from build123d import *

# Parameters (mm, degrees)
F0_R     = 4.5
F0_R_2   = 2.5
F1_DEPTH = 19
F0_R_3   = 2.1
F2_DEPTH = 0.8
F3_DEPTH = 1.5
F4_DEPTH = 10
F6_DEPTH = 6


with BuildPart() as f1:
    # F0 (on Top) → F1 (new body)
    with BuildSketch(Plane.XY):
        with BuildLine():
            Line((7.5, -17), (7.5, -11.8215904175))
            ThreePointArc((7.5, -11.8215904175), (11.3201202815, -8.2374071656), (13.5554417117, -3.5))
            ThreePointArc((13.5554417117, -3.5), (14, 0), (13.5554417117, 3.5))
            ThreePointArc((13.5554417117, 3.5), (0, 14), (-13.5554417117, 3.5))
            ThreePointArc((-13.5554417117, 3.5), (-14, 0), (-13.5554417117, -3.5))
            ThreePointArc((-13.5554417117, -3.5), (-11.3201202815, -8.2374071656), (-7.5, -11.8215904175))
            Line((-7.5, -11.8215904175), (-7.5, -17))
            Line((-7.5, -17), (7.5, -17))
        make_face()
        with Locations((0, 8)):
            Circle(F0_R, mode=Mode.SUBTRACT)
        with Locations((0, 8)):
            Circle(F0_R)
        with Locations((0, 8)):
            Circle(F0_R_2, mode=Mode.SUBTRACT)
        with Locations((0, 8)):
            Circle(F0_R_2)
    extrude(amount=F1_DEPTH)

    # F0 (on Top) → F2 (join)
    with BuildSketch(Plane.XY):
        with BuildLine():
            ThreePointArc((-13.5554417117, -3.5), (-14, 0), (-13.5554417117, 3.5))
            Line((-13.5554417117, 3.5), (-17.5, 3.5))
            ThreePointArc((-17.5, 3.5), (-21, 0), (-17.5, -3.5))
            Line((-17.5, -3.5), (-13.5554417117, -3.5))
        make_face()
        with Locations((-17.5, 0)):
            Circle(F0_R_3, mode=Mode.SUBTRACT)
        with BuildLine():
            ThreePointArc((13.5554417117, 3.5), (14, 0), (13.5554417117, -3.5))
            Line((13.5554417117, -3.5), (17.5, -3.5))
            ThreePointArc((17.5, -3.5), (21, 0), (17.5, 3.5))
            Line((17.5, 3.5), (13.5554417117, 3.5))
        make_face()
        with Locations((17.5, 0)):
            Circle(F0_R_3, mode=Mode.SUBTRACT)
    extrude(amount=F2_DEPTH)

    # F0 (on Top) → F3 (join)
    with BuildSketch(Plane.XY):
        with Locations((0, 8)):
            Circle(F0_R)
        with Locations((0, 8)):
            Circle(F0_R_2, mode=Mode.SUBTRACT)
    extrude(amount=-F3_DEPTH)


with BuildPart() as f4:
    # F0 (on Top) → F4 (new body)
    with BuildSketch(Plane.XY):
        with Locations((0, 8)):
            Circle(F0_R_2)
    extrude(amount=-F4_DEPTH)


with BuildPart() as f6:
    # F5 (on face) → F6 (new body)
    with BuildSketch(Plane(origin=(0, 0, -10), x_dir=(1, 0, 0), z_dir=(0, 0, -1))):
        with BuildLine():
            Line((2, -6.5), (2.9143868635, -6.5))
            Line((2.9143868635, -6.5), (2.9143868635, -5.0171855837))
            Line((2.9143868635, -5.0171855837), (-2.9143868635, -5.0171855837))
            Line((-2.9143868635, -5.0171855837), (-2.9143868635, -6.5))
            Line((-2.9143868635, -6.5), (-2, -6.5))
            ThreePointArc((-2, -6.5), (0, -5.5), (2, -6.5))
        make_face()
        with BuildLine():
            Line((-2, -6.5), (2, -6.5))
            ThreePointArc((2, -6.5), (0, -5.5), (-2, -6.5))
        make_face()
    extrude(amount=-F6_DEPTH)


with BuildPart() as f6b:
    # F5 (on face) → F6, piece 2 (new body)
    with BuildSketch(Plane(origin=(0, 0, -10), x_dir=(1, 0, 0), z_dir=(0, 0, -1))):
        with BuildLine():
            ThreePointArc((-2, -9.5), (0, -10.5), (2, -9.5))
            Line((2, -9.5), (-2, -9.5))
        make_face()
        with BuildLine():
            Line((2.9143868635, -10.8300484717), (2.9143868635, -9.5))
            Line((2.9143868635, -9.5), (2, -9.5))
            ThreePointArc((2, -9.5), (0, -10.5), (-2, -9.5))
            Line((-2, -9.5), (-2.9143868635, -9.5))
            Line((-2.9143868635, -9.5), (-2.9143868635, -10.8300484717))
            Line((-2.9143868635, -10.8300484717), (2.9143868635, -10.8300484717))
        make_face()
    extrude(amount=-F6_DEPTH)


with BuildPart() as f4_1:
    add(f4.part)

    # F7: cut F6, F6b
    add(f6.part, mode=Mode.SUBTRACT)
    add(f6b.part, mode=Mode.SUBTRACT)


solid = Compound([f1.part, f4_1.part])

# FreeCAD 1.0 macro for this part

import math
import FreeCAD as App
import Part
import Sketcher
from FreeCAD import Vector
Q = App.Units.Quantity


def add_polygon(sketch, points):
    """Adds a closed chain of lines whose ends are joined by coincident constraints."""
    first, n = sketch.GeometryCount, len(points)
    for a, b in zip(points, points[1:] + points[:1]):
        sketch.addGeometry(Part.LineSegment(App.Vector(*a, 0), App.Vector(*b, 0)), False)
    for i in range(n):
        sketch.addConstraint(Sketcher.Constraint("Coincident", first + i, 2, first + (i + 1) % n, 1))

doc = App.newDocument("Part")
body = doc.addObject("PartDesign::Body", "Body")

sketch1 = doc.addObject("Sketcher::SketchObject", "Sketch")
body.addObject(sketch1)
sketch1.AttachmentSupport = (doc.XY_Plane, [""])
sketch1.MapMode = "FlatFace"
sketch1.addGeometry([
    Part.LineSegment(Vector(7.5, -17, 0), Vector(7.5, -11.82159, 0)),
    Part.ArcOfCircle(Part.Circle(Vector(0, 0, 0), Vector(0, 0, 1), 14), math.radians(-57.607635), math.radians(-14.477512)),
    Part.ArcOfCircle(Part.Circle(Vector(0, 0, 0), Vector(0, 0, 1), 14), math.radians(-14.477512), math.radians(14.477512)),
    Part.ArcOfCircle(Part.Circle(Vector(0, 0, 0), Vector(0, 0, 1), 14), math.radians(14.477512), math.radians(165.522488)),
    Part.ArcOfCircle(Part.Circle(Vector(0, 0, 0), Vector(0, 0, 1), 14), math.radians(165.522488), math.radians(194.477512)),
    Part.ArcOfCircle(Part.Circle(Vector(0, 0, 0), Vector(0, 0, 1), 14), math.radians(-165.522488), math.radians(-122.392365)),
    Part.LineSegment(Vector(-7.5, -11.82159, 0), Vector(-7.5, -17, 0)),
    Part.LineSegment(Vector(-7.5, -17, 0), Vector(7.5, -17, 0)),
], False)
sketch1.addConstraint([
    Sketcher.Constraint("Coincident", 0, 2, 1, 1),
    Sketcher.Constraint("Tangent", 1, 2, 2, 1),
    Sketcher.Constraint("Tangent", 2, 2, 3, 1),
    Sketcher.Constraint("Tangent", 3, 2, 4, 1),
    Sketcher.Constraint("Tangent", 4, 2, 5, 1),
    Sketcher.Constraint("Coincident", 5, 2, 6, 1),
    Sketcher.Constraint("Coincident", 6, 2, 7, 1),
    Sketcher.Constraint("Coincident", 7, 2, 0, 1),
    Sketcher.Constraint("Vertical", 0),
    Sketcher.Constraint("Vertical", 6),
    Sketcher.Constraint("Horizontal", 7),
    Sketcher.Constraint("Coincident", 1, 3, -1, 1),
    Sketcher.Constraint("Coincident", 3, 3, -1, 1),
    Sketcher.Constraint("Coincident", 5, 3, -1, 1),
    Sketcher.Constraint("Horizontal", 2, 2, 3, 2),
    Sketcher.Constraint("Horizontal", 1, 2, 4, 2),
    Sketcher.Constraint("Horizontal", 0, 2, 5, 2),
    Sketcher.Constraint("Vertical", 1, 2, 2, 2),
    Sketcher.Constraint("Radius", 1, Q("14 mm")),
    Sketcher.Constraint("DistanceX", 7, 1, 7, 2, Q("15 mm")),
    Sketcher.Constraint("DistanceY", 6, 2, -1, 1, Q("17 mm")),
    Sketcher.Constraint("DistanceY", 1, 2, 2, 2, Q("7 mm")),
])
pad1 = doc.addObject("PartDesign::Pad", "Pad")
body.addObject(pad1)
pad1.Profile = sketch1
pad1.Length = 19

sketch2 = doc.addObject("Sketcher::SketchObject", "Sketch001")
body.addObject(sketch2)
sketch2.AttachmentSupport = (doc.XY_Plane, [""])
sketch2.MapMode = "FlatFace"
sketch2.addGeometry([
    Part.ArcOfCircle(Part.Circle(Vector(0, 0, 0), Vector(0, 0, 1), 14), math.radians(165.522488), math.radians(194.477512)),
    Part.LineSegment(Vector(-13.555442, 3.5, 0), Vector(-17.5, 3.5, 0)),
    Part.ArcOfCircle(Part.Circle(Vector(-17.5, 0, 0), Vector(0, 0, 1), 3.5), math.radians(90), math.radians(270)),
    Part.LineSegment(Vector(-17.5, -3.5, 0), Vector(-13.555442, -3.5, 0)),
    Part.Circle(Vector(-17.5, 0, 0), Vector(0, 0, 1), 2.1),
    Part.ArcOfCircle(Part.Circle(Vector(0, 0, 0), Vector(0, 0, 1), 14), math.radians(-14.477512), math.radians(14.477512)),
    Part.LineSegment(Vector(13.555442, -3.5, 0), Vector(17.5, -3.5, 0)),
    Part.ArcOfCircle(Part.Circle(Vector(17.5, 0, 0), Vector(0, 0, 1), 3.5), math.radians(-90), math.radians(90)),
    Part.LineSegment(Vector(17.5, 3.5, 0), Vector(13.555442, 3.5, 0)),
    Part.Circle(Vector(17.5, 0, 0), Vector(0, 0, 1), 2.1),
], False)
sketch2.addConstraint([
    Sketcher.Constraint("Coincident", 0, 1, 1, 1),
    Sketcher.Constraint("Tangent", 1, 2, 2, 1),
    Sketcher.Constraint("Tangent", 2, 2, 3, 1),
    Sketcher.Constraint("Coincident", 3, 2, 0, 2),
    Sketcher.Constraint("Coincident", 5, 1, 6, 1),
    Sketcher.Constraint("Tangent", 6, 2, 7, 1),
    Sketcher.Constraint("Tangent", 7, 2, 8, 1),
    Sketcher.Constraint("Coincident", 8, 2, 5, 2),
    Sketcher.Constraint("Horizontal", 1),
    Sketcher.Constraint("Horizontal", 3),
    Sketcher.Constraint("Horizontal", 6),
    Sketcher.Constraint("Horizontal", 8),
    Sketcher.Constraint("Coincident", 0, 3, -1, 1),
    Sketcher.Constraint("Coincident", 5, 3, -1, 1),
    Sketcher.Constraint("Coincident", 4, 3, 2, 3),
    Sketcher.Constraint("Coincident", 9, 3, 7, 3),
    Sketcher.Constraint("Equal", 0, 5),
    Sketcher.Constraint("Equal", 2, 7),
    Sketcher.Constraint("Equal", 4, 9),
    Sketcher.Constraint("Symmetric", 2, 3, 7, 3, -1, 1),
    Sketcher.Constraint("PointOnObject", 2, 3, -1),
    Sketcher.Constraint("Radius", 0, Q("14 mm")),
    Sketcher.Constraint("Diameter", 4, Q("4.2 mm")),
    Sketcher.Constraint("Radius", 2, Q("3.5 mm")),
    Sketcher.Constraint("DistanceX", 2, 3, 7, 3, Q("35 mm")),
])
pad2 = doc.addObject("PartDesign::Pad", "Pad001")
body.addObject(pad2)
pad2.Profile = sketch2
pad2.Length = 0.8

sketch3 = doc.addObject("Sketcher::SketchObject", "Sketch002")
body.addObject(sketch3)
sketch3.AttachmentSupport = (doc.XY_Plane, [""])
sketch3.MapMode = "FlatFace"
sketch3.addGeometry([
    Part.Circle(Vector(0, 8, 0), Vector(0, 0, 1), 4.5),
    Part.Circle(Vector(0, 8, 0), Vector(0, 0, 1), 2.5),
], False)
sketch3.addConstraint([
    Sketcher.Constraint("Coincident", 1, 3, 0, 3),
    Sketcher.Constraint("PointOnObject", 0, 3, -2),
    Sketcher.Constraint("Diameter", 0, Q("9 mm")),
    Sketcher.Constraint("Diameter", 1, Q("5 mm")),
    Sketcher.Constraint("DistanceY", -1, 1, 0, 3, Q("8 mm")),
])
pad3 = doc.addObject("PartDesign::Pad", "Pad002")
body.addObject(pad3)
pad3.Profile = sketch3
pad3.Length = 1.5
pad3.Reversed = True
body2 = doc.addObject("PartDesign::Body", "Body001")

sketch4 = doc.addObject("Sketcher::SketchObject", "Sketch003")
body2.addObject(sketch4)
sketch4.AttachmentSupport = (doc.getObject("XY_Plane001"), [""])
sketch4.MapMode = "FlatFace"
sketch4.addGeometry(Part.Circle(Vector(0, 8, 0), Vector(0, 0, 1), 2.5), False)
sketch4.addConstraint([
    Sketcher.Constraint("PointOnObject", 0, 3, -2),
    Sketcher.Constraint("Diameter", 0, Q("5 mm")),
    Sketcher.Constraint("DistanceY", -1, 1, 0, 3, Q("8 mm")),
])
pad4 = doc.addObject("PartDesign::Pad", "Pad003")
body2.addObject(pad4)
pad4.Profile = sketch4
pad4.Length = 10
pad4.Reversed = True
body3 = doc.addObject("PartDesign::Body", "Body002")

sketch5 = doc.addObject("Sketcher::SketchObject", "Sketch004")
body3.addObject(sketch5)
sketch5.AttachmentSupport = (doc.getObject("XY_Plane002"), [""])
sketch5.MapMode = "FlatFace"
sketch5.AttachmentOffset = App.Placement(Vector(0, 0, -10), App.Rotation())
add_polygon(sketch5, [(2.914387, 6.5), (2.914387, 5.017186), (-2.914387, 5.017186), (-2.914387, 6.5)])
sketch5.addConstraint([
    Sketcher.Constraint("Vertical", 0),
    Sketcher.Constraint("Horizontal", 1),
    Sketcher.Constraint("Vertical", 2),
    Sketcher.Constraint("Horizontal", 3),
    Sketcher.Constraint("DistanceY", -1, 1, 2, 2, Q("6.5 mm")),
    Sketcher.Constraint("DistanceX", 1, 2, 1, 1, Q("5.828774 mm")),
    Sketcher.Constraint("DistanceY", 0, 2, 0, 1, Q("1.482814 mm")),
    Sketcher.Constraint("DistanceX", -1, 1, 0, 2, Q("2.914387 mm")),
])
pad5 = doc.addObject("PartDesign::Pad", "Pad004")
body3.addObject(pad5)
pad5.Profile = sketch5
pad5.Length = 6
body4 = doc.addObject("PartDesign::Body", "Body003")

sketch6 = doc.addObject("Sketcher::SketchObject", "Sketch005")
body4.addObject(sketch6)
sketch6.AttachmentSupport = (doc.getObject("XY_Plane003"), [""])
sketch6.MapMode = "FlatFace"
sketch6.AttachmentOffset = App.Placement(Vector(0, 0, -10), App.Rotation())
add_polygon(sketch6, [(-2.914387, 9.5), (-2.914387, 10.830048), (2.914387, 10.830048), (2.914387, 9.5)])
sketch6.addConstraint([
    Sketcher.Constraint("Vertical", 0),
    Sketcher.Constraint("Horizontal", 1),
    Sketcher.Constraint("Vertical", 2),
    Sketcher.Constraint("Horizontal", 3),
    Sketcher.Constraint("DistanceY", -1, 1, 2, 2, Q("9.5 mm")),
    Sketcher.Constraint("DistanceY", 0, 1, 0, 2, Q("1.330048 mm")),
    Sketcher.Constraint("DistanceX", 1, 1, 1, 2, Q("5.828774 mm")),
    Sketcher.Constraint("DistanceX", 0, 2, -1, 1, Q("2.914387 mm")),
])
pad6 = doc.addObject("PartDesign::Pad", "Pad005")
body4.addObject(pad6)
pad6.Profile = sketch6
pad6.Length = 6
doc.recompute()

boolean = doc.addObject("PartDesign::Boolean", "Boolean")
body2.addObject(boolean)
boolean.Type = "Cut"
boolean.addObjects([body3])
doc.recompute()

boolean2 = doc.addObject("PartDesign::Boolean", "Boolean001")
body2.addObject(boolean2)
boolean2.Type = "Cut"
boolean2.addObjects([body4])

doc.recompute()
